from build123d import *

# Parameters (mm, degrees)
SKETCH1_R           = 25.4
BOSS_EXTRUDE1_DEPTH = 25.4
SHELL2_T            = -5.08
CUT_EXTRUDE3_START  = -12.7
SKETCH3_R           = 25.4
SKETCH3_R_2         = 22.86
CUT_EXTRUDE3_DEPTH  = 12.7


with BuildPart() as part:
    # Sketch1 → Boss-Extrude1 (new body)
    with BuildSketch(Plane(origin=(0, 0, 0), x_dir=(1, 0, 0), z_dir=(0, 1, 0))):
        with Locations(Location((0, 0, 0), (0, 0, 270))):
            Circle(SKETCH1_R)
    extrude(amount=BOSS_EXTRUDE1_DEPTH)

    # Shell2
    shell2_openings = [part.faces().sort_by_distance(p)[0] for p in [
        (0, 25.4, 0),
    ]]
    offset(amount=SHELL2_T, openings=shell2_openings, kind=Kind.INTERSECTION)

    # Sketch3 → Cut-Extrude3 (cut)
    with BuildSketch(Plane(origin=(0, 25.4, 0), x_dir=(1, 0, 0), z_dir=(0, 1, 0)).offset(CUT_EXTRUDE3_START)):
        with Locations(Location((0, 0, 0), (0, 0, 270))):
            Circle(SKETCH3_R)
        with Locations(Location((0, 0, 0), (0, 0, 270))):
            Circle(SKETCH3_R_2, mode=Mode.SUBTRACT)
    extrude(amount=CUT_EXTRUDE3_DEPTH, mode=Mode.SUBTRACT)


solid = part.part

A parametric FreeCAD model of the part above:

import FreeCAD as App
import Part
import Sketcher
Q = App.Units.Quantity


def faces_at(feature, points):
    """Names of the faces that lie closest to the given points."""
    faces = feature.Shape.Faces
    near = lambda p: min(range(len(faces)), key=lambda i: faces[i].distToShape(Part.Vertex(*p))[0])
    return sorted({f"Face{near(p) + 1}" for p in points})

doc = App.newDocument("Part")
body = doc.addObject("PartDesign::Body", "Body")

# Sketch on XZ plane
sketch1 = doc.addObject("Sketcher::SketchObject", "Sketch")
body.addObject(sketch1)
sketch1.AttachmentSupport = (doc.XZ_Plane, [""])
sketch1.MapMode = "FlatFace"
sketch1.addGeometry(Part.Circle(App.Vector(0, 0, 0), App.Vector(0, 0, 1), 25.4), False)
sketch1.addConstraint(Sketcher.Constraint("Coincident", 0, 3, -1, 1))
sketch1.addConstraint(Sketcher.Constraint("Diameter", 0, Q("2 in")))
pad1 = doc.addObject("PartDesign::Pad", "Pad")
body.addObject(pad1)
pad1.Profile = sketch1
pad1.Length = Q("1 in")
pad1.Reversed = True
doc.recompute()

thickness = doc.addObject("PartDesign::Thickness", "Thickness")
body.addObject(thickness)
thickness.Base = (pad1, faces_at(pad1, [(0, 25.4, 0)]))
thickness.Value = Q("0.2 in")
thickness.Reversed = True
thickness.Join = "Intersection"

# Sketch on XZ plane
sketch2 = doc.addObject("Sketcher::SketchObject", "Sketch001")
body.addObject(sketch2)
sketch2.AttachmentSupport = (doc.XZ_Plane, [""])
sketch2.MapMode = "FlatFace"
sketch2.AttachmentOffset = App.Placement(App.Vector(0, 0, -0.5 * 25.4), App.Rotation())
sketch2.addGeometry(Part.Circle(App.Vector(0, 0, 0), App.Vector(0, 0, 1), 25.4), False)
sketch2.addGeometry(Part.Circle(App.Vector(0, 0, 0), App.Vector(0, 0, 1), 22.86), False)
sketch2.addConstraint(Sketcher.Constraint("Coincident", 0, 3, -1, 1))
sketch2.addConstraint(Sketcher.Constraint("Coincident", 1, 3, -1, 1))
sketch2.addConstraint(Sketcher.Constraint("Diameter", 0, Q("2 in")))
sketch2.addConstraint(Sketcher.Constraint("Diameter", 1, Q("1.8 in")))
pocket1 = doc.addObject("PartDesign::Pocket", "Pocket")
body.addObject(pocket1)
pocket1.Profile = sketch2
pocket1.Length = Q("0.5 in")

doc.recompute()
